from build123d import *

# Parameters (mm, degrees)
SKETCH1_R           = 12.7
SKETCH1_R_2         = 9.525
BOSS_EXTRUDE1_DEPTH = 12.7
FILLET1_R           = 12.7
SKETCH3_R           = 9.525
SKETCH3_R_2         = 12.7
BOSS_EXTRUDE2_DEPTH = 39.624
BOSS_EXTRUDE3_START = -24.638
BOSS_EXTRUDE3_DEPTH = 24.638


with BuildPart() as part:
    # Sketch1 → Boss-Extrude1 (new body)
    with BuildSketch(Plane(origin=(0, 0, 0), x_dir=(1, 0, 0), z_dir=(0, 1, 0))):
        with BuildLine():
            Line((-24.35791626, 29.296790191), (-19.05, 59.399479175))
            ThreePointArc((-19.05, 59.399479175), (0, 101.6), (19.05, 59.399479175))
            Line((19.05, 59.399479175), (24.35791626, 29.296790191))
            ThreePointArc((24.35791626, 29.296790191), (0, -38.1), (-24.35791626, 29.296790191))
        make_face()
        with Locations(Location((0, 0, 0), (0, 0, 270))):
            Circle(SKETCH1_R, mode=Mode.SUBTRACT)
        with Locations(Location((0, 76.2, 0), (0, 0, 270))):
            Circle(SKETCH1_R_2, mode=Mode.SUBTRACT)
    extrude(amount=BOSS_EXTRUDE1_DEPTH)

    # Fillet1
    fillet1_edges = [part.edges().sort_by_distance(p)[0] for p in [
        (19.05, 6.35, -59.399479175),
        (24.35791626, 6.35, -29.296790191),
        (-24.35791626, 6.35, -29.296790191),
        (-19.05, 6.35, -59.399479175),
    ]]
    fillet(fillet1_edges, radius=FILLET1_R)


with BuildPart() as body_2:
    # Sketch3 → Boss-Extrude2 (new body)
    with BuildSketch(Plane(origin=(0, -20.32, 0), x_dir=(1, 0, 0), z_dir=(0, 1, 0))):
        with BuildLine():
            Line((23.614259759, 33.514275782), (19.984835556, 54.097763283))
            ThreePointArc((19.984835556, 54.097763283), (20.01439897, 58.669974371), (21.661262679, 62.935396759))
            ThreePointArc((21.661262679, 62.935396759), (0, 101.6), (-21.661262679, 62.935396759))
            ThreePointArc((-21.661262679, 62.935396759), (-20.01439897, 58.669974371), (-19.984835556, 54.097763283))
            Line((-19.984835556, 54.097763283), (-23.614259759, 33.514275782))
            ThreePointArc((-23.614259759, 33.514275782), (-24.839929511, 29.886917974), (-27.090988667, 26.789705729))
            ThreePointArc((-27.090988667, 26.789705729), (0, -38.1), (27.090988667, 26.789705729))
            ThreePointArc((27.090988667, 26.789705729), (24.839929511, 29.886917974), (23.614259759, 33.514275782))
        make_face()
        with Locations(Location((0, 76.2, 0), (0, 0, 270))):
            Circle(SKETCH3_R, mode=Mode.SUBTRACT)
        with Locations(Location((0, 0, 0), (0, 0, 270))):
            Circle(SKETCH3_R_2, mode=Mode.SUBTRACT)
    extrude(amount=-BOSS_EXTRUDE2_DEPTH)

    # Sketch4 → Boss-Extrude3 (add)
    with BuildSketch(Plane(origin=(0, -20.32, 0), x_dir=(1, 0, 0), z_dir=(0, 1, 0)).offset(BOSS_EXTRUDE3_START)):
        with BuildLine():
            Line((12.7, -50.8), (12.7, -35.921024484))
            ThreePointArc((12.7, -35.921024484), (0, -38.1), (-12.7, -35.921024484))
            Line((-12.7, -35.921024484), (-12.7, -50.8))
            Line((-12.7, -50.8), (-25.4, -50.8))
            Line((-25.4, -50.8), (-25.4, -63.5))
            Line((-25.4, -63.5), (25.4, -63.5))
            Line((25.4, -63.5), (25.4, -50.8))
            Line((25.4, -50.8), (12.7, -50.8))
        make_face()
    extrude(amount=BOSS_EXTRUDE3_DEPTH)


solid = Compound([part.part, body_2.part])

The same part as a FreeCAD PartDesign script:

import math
import FreeCAD as App
import Part
import Sketcher

V = App.Vector
Q = App.Units.Quantity


def edges_at(feature, points):
    """Names of the edges that pass closest to the given points."""
    edges = feature.Shape.Edges
    near = lambda p: min(range(len(edges)), key=lambda i: edges[i].distToShape(Part.Vertex(*p))[0])
    return sorted({f"Edge{near(p) + 1}" for p in points})

doc = App.newDocument("Part")
body = doc.addObject("PartDesign::Body", "Body")

sketch1 = body.newObject("Sketcher::SketchObject", "Sketch")
sketch1.AttachmentSupport = (doc.getObject("XZ_Plane"), [""])
sketch1.MapMode = "FlatFace"
sketch1.addGeometry([
    Part.LineSegment(V(-19, -59, 0), V(-24, -29, 0)),
    Part.ArcOfCircle(Part.Circle(V(0, 0, 0), V(0, 0, 1), 38), math.radians(-50), math.radians(230)),
    Part.LineSegment(V(24, -29, 0), V(19, -59, 0)),
    Part.ArcOfCircle(Part.Circle(V(0, -76, 0), V(0, 0, 1), 25), math.radians(139), math.radians(401)),
    Part.Circle(V(0, 0, 0), V(0, 0, 1), 13),
    Part.Circle(V(0, -76, 0), V(0, 0, 1), 10),
], False)
sketch1.addConstraint([
    Sketcher.Constraint("Coincident", 0, 2, 1, 2),
    Sketcher.Constraint("Coincident", 1, 1, 2, 1),
    Sketcher.Constraint("Coincident", 2, 2, 3, 2),
    Sketcher.Constraint("Coincident", 3, 1, 0, 1),
    Sketcher.Constraint("Coincident", 1, 3, -1, 1),
    Sketcher.Constraint("Coincident", 4, 3, -1, 1),
    Sketcher.Constraint("Coincident", 5, 3, 3, 3),
    Sketcher.Constraint("Symmetric", 2, 2, 3, 1, -2),
    Sketcher.Constraint("Horizontal", 0, 2, 1, 1),
    Sketcher.Constraint("Diameter", 4, Q("1 in")),
    Sketcher.Constraint("Radius", 3, Q("1 in")),
    Sketcher.Constraint("Radius", 1, Q("1.5 in")),
    Sketcher.Constraint("Diameter", 5, Q("0.75 in")),
    Sketcher.Constraint("DistanceY", 3, 3, -1, 1, Q("3 in")),
    Sketcher.Constraint("Angle", 0, Q("100 deg")),
    Sketcher.Constraint("DistanceX", 3, 1, 2, 2, Q("1.5 in")),
])
pad1 = body.newObject("PartDesign::Pad", "Pad")
pad1.Profile = sketch1
pad1.Length = Q("0.5 in")
pad1.Reversed = True
doc.recompute()

fillet = body.newObject("PartDesign::Fillet", "Fillet")
fillet.Base = (pad1, edges_at(pad1, [
    (19.05, 6.35, -59.399),
    (24.358, 6.35, -29.297),
    (-24.358, 6.35, -29.297),
    (-19.05, 6.35, -59.399),
]))
fillet.Radius = Q("0.5 in")
body2 = doc.addObject("PartDesign::Body", "Body001")

sketch2 = body2.newObject("Sketcher::SketchObject", "Sketch001")
sketch2.AttachmentSupport = (doc.getObject("XZ_Plane001"), [""])
sketch2.MapMode = "FlatFace"
sketch2.AttachmentOffset = App.Placement(V(0, 0, 0.8 * 25.4), App.Rotation())
sketch2.addGeometry([
    Part.LineSegment(V(24, -34, 0), V(20, -54, 0)),
    Part.ArcOfCircle(Part.Circle(V(32, -56, 0), V(0, 0, 1), 13), math.radians(170), math.radians(211)),
    Part.ArcOfCircle(Part.Circle(V(0, -76, 0), V(0, 0, 1), 25), math.radians(149), math.radians(391)),
    Part.ArcOfCircle(Part.Circle(V(-32, -56, 0), V(0, 0, 1), 13), math.radians(-31), math.radians(10)),
    Part.LineSegment(V(-20, -54, 0), V(-24, -34, 0)),
    Part.ArcOfCircle(Part.Circle(V(-36, -36, 0), V(0, 0, 1), 13), math.radians(10), math.radians(45)),
    Part.ArcOfCircle(Part.Circle(V(0, 0, 0), V(0, 0, 1), 38), math.radians(-45), math.radians(225)),
    Part.ArcOfCircle(Part.Circle(V(36, -36, 0), V(0, 0, 1), 13), math.radians(135), math.radians(170)),
    Part.Circle(V(0, 0, 0), V(0, 0, 1), 13),
    Part.Circle(V(0, -76, 0), V(0, 0, 1), 10),
], False)
sketch2.addConstraint([
    Sketcher.Constraint("Tangent", 0, 2, 1, 1),
    Sketcher.Constraint("Tangent", 1, 2, 2, 2),
    Sketcher.Constraint("Tangent", 2, 1, 3, 1),
    Sketcher.Constraint("Tangent", 3, 2, 4, 1),
    Sketcher.Constraint("Tangent", 4, 2, 5, 1),
    Sketcher.Constraint("Tangent", 5, 2, 6, 2),
    Sketcher.Constraint("Tangent", 6, 1, 7, 1),
    Sketcher.Constraint("Tangent", 7, 2, 0, 1),
    Sketcher.Constraint("Coincident", 6, 3, -1, 1),
    Sketcher.Constraint("Coincident", 8, 3, -1, 1),
    Sketcher.Constraint("Coincident", 9, 3, 2, 3),
    Sketcher.Constraint("Equal", 1, 3),
    Sketcher.Constraint("Equal", 3, 5),
    Sketcher.Constraint("Equal", 5, 7),
    Sketcher.Constraint("Equal", 7, 8),
    Sketcher.Constraint("Symmetric", 1, 3, 3, 3, -2),
    Sketcher.Constraint("Horizontal", 5, 3, 7, 3),
    Sketcher.Constraint("Diameter", 8, Q("1 in")),
    Sketcher.Constraint("Radius", 2, Q("1 in")),
    Sketcher.Constraint("Radius", 6, Q("1.5 in")),
    Sketcher.Constraint("Diameter", 9, Q("0.75 in")),
    Sketcher.Constraint("DistanceY", 2, 3, -1, 1, Q("3 in")),
    Sketcher.Constraint("Angle", 0, Q("-100 deg")),
    Sketcher.Constraint("DistanceY", 1, 2, 1, 3, 6.632302),
])
pad2 = body2.newObject("PartDesign::Pad", "Pad001")
pad2.Profile = sketch2
pad2.Length = Q("1.56 in")

sketch3 = body2.newObject("Sketcher::SketchObject", "Sketch002")
sketch3.AttachmentSupport = (doc.getObject("XZ_Plane001"), [""])
sketch3.MapMode = "FlatFace"
sketch3.AttachmentOffset = App.Placement(V(0, 0, 1.77 * 25.4), App.Rotation())
sketch3.addGeometry([
    Part.LineSegment(V(13, 51, 0), V(13, 36, 0)),
    Part.ArcOfCircle(Part.Circle(V(0, 0, 0), V(0, 0, 1), 38), math.radians(71), math.radians(109)),
    Part.LineSegment(V(-13, 36, 0), V(-13, 51, 0)),
    Part.LineSegment(V(-13, 51, 0), V(-25, 51, 0)),
    Part.LineSegment(V(-25, 51, 0), V(-25, 64, 0)),
    Part.LineSegment(V(-25, 64, 0), V(25, 64, 0)),
    Part.LineSegment(V(25, 64, 0), V(25, 51, 0)),
    Part.LineSegment(V(25, 51, 0), V(13, 51, 0)),
], False)
sketch3.addConstraint([
    Sketcher.Constraint("Coincident", 0, 2, 1, 1),
    Sketcher.Constraint("Coincident", 1, 2, 2, 1),
    Sketcher.Constraint("Coincident", 2, 2, 3, 1),
    Sketcher.Constraint("Coincident", 3, 2, 4, 1),
    Sketcher.Constraint("Coincident", 4, 2, 5, 1),
    Sketcher.Constraint("Coincident", 5, 2, 6, 1),
    Sketcher.Constraint("Coincident", 6, 2, 7, 1),
    Sketcher.Constraint("Coincident", 7, 2, 0, 1),
    Sketcher.Constraint("Vertical", 0),
    Sketcher.Constraint("Vertical", 2),
    Sketcher.Constraint("Horizontal", 3),
    Sketcher.Constraint("Vertical", 4),
    Sketcher.Constraint("Horizontal", 5),
    Sketcher.Constraint("Vertical", 6),
    Sketcher.Constraint("Horizontal", 7),
    Sketcher.Constraint("Coincident", 1, 3, -1, 1),
    Sketcher.Constraint("Symmetric", 3, 2, 6, 2, -2),
    Sketcher.Constraint("Horizontal", 0, 2, 1, 2),
    Sketcher.Constraint("Equal", 7, 4),
    Sketcher.Constraint("Radius", 1, Q("1.5 in")),
    Sketcher.Constraint("DistanceX", 5, 1, 5, 2, Q("2 in")),
    Sketcher.Constraint("DistanceX", 3, 2, 3, 1, Q("0.5 in")),
    Sketcher.Constraint("DistanceY", -1, 1, 2, 2, Q("2 in")),
])
pad3 = body2.newObject("PartDesign::Pad", "Pad002")
pad3.Profile = sketch3
pad3.Length = Q("0.97 in")
pad3.Reversed = True

doc.recompute()
